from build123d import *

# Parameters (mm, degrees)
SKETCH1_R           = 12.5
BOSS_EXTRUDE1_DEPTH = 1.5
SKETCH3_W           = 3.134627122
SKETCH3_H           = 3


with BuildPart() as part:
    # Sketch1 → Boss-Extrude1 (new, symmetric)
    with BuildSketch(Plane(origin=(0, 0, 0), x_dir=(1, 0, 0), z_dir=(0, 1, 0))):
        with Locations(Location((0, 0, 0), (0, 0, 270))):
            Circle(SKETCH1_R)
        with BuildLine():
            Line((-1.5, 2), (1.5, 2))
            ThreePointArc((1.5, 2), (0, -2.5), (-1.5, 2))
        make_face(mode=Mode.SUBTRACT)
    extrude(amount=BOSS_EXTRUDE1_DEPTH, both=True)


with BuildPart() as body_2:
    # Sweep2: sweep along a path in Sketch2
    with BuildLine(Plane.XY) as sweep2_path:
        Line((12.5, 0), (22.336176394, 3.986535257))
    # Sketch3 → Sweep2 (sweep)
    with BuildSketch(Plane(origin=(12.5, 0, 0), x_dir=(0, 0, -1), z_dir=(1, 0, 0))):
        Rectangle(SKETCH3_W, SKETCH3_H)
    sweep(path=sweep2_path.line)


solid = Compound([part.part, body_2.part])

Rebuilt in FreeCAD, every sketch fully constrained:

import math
import FreeCAD as App
import Part
import Sketcher

V = App.Vector
Q = App.Units.Quantity

doc = App.newDocument("Part")
body = doc.addObject("PartDesign::Body", "Body")

sketch1 = doc.addObject("Sketcher::SketchObject", "Sketch")
body.addObject(sketch1)
sketch1.AttachmentSupport = (doc.XZ_Plane, [""])
sketch1.MapMode = "FlatFace"
sketch1.addGeometry([
    Part.Circle(V(0, 0, 0), V(0, 0, 1), 12.5),
    Part.ArcOfCircle(Part.Circle(V(0, 0, 0), V(0, 0, 1), 2.5), math.radians(-53.130102), math.radians(233.130102)),
    Part.LineSegment(V(-1.5, -2, 0), V(1.5, -2, 0)),
], False)
sketch1.addConstraint([
    Sketcher.Constraint("Coincident", 1, 1, 2, 2),
    Sketcher.Constraint("Coincident", 2, 1, 1, 2),
    Sketcher.Constraint("Horizontal", 2),
    Sketcher.Constraint("Coincident", 0, 3, -1, 1),
    Sketcher.Constraint("Coincident", 1, 3, -1, 1),
    Sketcher.Constraint("Diameter", 0, Q("25 mm")),
    Sketcher.Constraint("Radius", 1, Q("2.5 mm")),
    Sketcher.Constraint("DistanceX", 2, 1, 2, 2, Q("3 mm")),
])
pad1 = doc.addObject("PartDesign::Pad", "Pad")
body.addObject(pad1)
pad1.Profile = sketch1
pad1.Length = 3
pad1.Midplane = True
body2 = doc.addObject("PartDesign::Body", "Body001")

sketch2 = doc.addObject("Sketcher::SketchObject", "Sketch001")
body2.addObject(sketch2)
sketch2.AttachmentSupport = (doc.getObject("YZ_Plane001"), [""])
sketch2.MapMode = "FlatFace"
sketch2.AttachmentOffset = App.Placement(V(0, 0, 12.5), App.Rotation())
sketch2.addGeometry([
    Part.LineSegment(V(1.5, 1.567314, 0), V(-1.5, 1.567314, 0)),
    Part.LineSegment(V(-1.5, 1.567314, 0), V(-1.5, -1.567314, 0)),
    Part.LineSegment(V(-1.5, -1.567314, 0), V(1.5, -1.567314, 0)),
    Part.LineSegment(V(1.5, -1.567314, 0), V(1.5, 1.567314, 0)),
], False)
sketch2.addConstraint([
    Sketcher.Constraint("Coincident", 0, 2, 1, 1),
    Sketcher.Constraint("Coincident", 1, 2, 2, 1),
    Sketcher.Constraint("Coincident", 2, 2, 3, 1),
    Sketcher.Constraint("Coincident", 3, 2, 0, 1),
    Sketcher.Constraint("Horizontal", 0),
    Sketcher.Constraint("Vertical", 1),
    Sketcher.Constraint("Horizontal", 2),
    Sketcher.Constraint("Vertical", 3),
    Sketcher.Constraint("Symmetric", 0, 2, 2, 2, -1, 1),
    Sketcher.Constraint("DistanceX", 0, 2, 0, 1, Q("3 mm")),
    Sketcher.Constraint("DistanceY", 1, 2, 1, 1, Q("3.134627 mm")),
])

sketch3 = doc.addObject("Sketcher::SketchObject", "Sketch002")
body2.addObject(sketch3)
sketch3.Placement = App.Placement(V(1.76359, -4.351394, 0), App.Rotation(V(0.926775476, 0.375615784, 0), V(0, 0, 1), V(0.375615784, -0.926775476, 0), "ZXY"))
sketch3.addGeometry(Part.LineSegment(V(11.584693, 0, 0), V(22.198026, 0, 0)), False)
sketch3.addConstraint([
    Sketcher.Constraint("Horizontal", 0),
    Sketcher.Constraint("PointOnObject", 0, 1, -1),
    Sketcher.Constraint("DistanceX", 0, 1, 0, 2, Q("10.613333 mm")),
    Sketcher.Constraint("DistanceX", -1, 1, 0, 1, Q("11.584693 mm")),
])
doc.recompute()

additivepipe = doc.addObject("PartDesign::AdditivePipe", "AdditivePipe")
body2.addObject(additivepipe)
additivepipe.Profile = sketch2
additivepipe.Spine = (sketch3, ["Edge1"])

doc.recompute()
